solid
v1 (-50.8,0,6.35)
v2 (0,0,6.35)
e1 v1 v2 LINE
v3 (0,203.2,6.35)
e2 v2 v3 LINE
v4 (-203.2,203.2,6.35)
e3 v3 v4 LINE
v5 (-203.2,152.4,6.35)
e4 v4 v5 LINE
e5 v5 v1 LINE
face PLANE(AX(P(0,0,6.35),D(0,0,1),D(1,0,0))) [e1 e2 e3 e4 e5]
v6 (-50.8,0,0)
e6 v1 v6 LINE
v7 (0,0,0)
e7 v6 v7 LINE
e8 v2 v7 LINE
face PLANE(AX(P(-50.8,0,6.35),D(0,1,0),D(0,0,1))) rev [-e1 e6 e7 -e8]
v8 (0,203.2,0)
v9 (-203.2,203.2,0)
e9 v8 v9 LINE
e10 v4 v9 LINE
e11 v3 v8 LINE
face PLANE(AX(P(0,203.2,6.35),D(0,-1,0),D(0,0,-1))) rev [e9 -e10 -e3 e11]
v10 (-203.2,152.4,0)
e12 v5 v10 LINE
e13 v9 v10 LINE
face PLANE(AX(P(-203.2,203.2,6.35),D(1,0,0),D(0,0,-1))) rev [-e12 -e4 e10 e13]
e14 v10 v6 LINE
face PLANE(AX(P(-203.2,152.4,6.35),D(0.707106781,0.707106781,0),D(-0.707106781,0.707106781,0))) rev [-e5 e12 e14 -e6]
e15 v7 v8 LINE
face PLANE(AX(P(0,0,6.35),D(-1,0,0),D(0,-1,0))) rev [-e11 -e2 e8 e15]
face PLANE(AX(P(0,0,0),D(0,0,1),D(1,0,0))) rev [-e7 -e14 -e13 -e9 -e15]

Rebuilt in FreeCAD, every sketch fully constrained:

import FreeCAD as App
import Part
import Sketcher
from FreeCAD import Vector
Q = App.Units.Quantity

doc = App.newDocument("Part")
body = doc.addObject("PartDesign::Body", "Body")

sketch1 = body.newObject("Sketcher::SketchObject", "Sketch")
sketch1.AttachmentSupport = (doc.getObject("XY_Plane"), [""])
sketch1.MapMode = "FlatFace"
sketch1.addGeometry([
    Part.LineSegment(Vector(0, 0, 0), Vector(0, 203.2, 0)),
    Part.LineSegment(Vector(0, 203.2, 0), Vector(-203.2, 203.2, 0)),
    Part.LineSegment(Vector(-203.2, 203.2, 0), Vector(-203.2, 152.4, 0)),
    Part.LineSegment(Vector(-203.2, 152.4, 0), Vector(-50.8, 0, 0)),
    Part.LineSegment(Vector(-50.8, 0, 0), Vector(0, 0, 0)),
], False)
sketch1.addConstraint([
    Sketcher.Constraint("Coincident", 0, 2, 1, 1),
    Sketcher.Constraint("Coincident", 1, 2, 2, 1),
    Sketcher.Constraint("Coincident", 2, 2, 3, 1),
    Sketcher.Constraint("Coincident", 3, 2, 4, 1),
    Sketcher.Constraint("Coincident", 4, 2, 0, 1),
    Sketcher.Constraint("Vertical", 0),
    Sketcher.Constraint("Horizontal", 1),
    Sketcher.Constraint("Vertical", 2),
    Sketcher.Constraint("Horizontal", 4),
    Sketcher.Constraint("Coincident", 4, 2, -1, 1),
    Sketcher.Constraint("Equal", 1, 0),
    Sketcher.Constraint("Equal", 4, 2),
    Sketcher.Constraint("DistanceX", 1, 2, 1, 1, Q("8 in")),
    Sketcher.Constraint("DistanceX", 4, 1, 4, 2, Q("2 in")),
])
pad1 = body.newObject("PartDesign::Pad", "Pad")
pad1.Profile = sketch1
pad1.Length = Q("0.25 in")

doc.recompute()
